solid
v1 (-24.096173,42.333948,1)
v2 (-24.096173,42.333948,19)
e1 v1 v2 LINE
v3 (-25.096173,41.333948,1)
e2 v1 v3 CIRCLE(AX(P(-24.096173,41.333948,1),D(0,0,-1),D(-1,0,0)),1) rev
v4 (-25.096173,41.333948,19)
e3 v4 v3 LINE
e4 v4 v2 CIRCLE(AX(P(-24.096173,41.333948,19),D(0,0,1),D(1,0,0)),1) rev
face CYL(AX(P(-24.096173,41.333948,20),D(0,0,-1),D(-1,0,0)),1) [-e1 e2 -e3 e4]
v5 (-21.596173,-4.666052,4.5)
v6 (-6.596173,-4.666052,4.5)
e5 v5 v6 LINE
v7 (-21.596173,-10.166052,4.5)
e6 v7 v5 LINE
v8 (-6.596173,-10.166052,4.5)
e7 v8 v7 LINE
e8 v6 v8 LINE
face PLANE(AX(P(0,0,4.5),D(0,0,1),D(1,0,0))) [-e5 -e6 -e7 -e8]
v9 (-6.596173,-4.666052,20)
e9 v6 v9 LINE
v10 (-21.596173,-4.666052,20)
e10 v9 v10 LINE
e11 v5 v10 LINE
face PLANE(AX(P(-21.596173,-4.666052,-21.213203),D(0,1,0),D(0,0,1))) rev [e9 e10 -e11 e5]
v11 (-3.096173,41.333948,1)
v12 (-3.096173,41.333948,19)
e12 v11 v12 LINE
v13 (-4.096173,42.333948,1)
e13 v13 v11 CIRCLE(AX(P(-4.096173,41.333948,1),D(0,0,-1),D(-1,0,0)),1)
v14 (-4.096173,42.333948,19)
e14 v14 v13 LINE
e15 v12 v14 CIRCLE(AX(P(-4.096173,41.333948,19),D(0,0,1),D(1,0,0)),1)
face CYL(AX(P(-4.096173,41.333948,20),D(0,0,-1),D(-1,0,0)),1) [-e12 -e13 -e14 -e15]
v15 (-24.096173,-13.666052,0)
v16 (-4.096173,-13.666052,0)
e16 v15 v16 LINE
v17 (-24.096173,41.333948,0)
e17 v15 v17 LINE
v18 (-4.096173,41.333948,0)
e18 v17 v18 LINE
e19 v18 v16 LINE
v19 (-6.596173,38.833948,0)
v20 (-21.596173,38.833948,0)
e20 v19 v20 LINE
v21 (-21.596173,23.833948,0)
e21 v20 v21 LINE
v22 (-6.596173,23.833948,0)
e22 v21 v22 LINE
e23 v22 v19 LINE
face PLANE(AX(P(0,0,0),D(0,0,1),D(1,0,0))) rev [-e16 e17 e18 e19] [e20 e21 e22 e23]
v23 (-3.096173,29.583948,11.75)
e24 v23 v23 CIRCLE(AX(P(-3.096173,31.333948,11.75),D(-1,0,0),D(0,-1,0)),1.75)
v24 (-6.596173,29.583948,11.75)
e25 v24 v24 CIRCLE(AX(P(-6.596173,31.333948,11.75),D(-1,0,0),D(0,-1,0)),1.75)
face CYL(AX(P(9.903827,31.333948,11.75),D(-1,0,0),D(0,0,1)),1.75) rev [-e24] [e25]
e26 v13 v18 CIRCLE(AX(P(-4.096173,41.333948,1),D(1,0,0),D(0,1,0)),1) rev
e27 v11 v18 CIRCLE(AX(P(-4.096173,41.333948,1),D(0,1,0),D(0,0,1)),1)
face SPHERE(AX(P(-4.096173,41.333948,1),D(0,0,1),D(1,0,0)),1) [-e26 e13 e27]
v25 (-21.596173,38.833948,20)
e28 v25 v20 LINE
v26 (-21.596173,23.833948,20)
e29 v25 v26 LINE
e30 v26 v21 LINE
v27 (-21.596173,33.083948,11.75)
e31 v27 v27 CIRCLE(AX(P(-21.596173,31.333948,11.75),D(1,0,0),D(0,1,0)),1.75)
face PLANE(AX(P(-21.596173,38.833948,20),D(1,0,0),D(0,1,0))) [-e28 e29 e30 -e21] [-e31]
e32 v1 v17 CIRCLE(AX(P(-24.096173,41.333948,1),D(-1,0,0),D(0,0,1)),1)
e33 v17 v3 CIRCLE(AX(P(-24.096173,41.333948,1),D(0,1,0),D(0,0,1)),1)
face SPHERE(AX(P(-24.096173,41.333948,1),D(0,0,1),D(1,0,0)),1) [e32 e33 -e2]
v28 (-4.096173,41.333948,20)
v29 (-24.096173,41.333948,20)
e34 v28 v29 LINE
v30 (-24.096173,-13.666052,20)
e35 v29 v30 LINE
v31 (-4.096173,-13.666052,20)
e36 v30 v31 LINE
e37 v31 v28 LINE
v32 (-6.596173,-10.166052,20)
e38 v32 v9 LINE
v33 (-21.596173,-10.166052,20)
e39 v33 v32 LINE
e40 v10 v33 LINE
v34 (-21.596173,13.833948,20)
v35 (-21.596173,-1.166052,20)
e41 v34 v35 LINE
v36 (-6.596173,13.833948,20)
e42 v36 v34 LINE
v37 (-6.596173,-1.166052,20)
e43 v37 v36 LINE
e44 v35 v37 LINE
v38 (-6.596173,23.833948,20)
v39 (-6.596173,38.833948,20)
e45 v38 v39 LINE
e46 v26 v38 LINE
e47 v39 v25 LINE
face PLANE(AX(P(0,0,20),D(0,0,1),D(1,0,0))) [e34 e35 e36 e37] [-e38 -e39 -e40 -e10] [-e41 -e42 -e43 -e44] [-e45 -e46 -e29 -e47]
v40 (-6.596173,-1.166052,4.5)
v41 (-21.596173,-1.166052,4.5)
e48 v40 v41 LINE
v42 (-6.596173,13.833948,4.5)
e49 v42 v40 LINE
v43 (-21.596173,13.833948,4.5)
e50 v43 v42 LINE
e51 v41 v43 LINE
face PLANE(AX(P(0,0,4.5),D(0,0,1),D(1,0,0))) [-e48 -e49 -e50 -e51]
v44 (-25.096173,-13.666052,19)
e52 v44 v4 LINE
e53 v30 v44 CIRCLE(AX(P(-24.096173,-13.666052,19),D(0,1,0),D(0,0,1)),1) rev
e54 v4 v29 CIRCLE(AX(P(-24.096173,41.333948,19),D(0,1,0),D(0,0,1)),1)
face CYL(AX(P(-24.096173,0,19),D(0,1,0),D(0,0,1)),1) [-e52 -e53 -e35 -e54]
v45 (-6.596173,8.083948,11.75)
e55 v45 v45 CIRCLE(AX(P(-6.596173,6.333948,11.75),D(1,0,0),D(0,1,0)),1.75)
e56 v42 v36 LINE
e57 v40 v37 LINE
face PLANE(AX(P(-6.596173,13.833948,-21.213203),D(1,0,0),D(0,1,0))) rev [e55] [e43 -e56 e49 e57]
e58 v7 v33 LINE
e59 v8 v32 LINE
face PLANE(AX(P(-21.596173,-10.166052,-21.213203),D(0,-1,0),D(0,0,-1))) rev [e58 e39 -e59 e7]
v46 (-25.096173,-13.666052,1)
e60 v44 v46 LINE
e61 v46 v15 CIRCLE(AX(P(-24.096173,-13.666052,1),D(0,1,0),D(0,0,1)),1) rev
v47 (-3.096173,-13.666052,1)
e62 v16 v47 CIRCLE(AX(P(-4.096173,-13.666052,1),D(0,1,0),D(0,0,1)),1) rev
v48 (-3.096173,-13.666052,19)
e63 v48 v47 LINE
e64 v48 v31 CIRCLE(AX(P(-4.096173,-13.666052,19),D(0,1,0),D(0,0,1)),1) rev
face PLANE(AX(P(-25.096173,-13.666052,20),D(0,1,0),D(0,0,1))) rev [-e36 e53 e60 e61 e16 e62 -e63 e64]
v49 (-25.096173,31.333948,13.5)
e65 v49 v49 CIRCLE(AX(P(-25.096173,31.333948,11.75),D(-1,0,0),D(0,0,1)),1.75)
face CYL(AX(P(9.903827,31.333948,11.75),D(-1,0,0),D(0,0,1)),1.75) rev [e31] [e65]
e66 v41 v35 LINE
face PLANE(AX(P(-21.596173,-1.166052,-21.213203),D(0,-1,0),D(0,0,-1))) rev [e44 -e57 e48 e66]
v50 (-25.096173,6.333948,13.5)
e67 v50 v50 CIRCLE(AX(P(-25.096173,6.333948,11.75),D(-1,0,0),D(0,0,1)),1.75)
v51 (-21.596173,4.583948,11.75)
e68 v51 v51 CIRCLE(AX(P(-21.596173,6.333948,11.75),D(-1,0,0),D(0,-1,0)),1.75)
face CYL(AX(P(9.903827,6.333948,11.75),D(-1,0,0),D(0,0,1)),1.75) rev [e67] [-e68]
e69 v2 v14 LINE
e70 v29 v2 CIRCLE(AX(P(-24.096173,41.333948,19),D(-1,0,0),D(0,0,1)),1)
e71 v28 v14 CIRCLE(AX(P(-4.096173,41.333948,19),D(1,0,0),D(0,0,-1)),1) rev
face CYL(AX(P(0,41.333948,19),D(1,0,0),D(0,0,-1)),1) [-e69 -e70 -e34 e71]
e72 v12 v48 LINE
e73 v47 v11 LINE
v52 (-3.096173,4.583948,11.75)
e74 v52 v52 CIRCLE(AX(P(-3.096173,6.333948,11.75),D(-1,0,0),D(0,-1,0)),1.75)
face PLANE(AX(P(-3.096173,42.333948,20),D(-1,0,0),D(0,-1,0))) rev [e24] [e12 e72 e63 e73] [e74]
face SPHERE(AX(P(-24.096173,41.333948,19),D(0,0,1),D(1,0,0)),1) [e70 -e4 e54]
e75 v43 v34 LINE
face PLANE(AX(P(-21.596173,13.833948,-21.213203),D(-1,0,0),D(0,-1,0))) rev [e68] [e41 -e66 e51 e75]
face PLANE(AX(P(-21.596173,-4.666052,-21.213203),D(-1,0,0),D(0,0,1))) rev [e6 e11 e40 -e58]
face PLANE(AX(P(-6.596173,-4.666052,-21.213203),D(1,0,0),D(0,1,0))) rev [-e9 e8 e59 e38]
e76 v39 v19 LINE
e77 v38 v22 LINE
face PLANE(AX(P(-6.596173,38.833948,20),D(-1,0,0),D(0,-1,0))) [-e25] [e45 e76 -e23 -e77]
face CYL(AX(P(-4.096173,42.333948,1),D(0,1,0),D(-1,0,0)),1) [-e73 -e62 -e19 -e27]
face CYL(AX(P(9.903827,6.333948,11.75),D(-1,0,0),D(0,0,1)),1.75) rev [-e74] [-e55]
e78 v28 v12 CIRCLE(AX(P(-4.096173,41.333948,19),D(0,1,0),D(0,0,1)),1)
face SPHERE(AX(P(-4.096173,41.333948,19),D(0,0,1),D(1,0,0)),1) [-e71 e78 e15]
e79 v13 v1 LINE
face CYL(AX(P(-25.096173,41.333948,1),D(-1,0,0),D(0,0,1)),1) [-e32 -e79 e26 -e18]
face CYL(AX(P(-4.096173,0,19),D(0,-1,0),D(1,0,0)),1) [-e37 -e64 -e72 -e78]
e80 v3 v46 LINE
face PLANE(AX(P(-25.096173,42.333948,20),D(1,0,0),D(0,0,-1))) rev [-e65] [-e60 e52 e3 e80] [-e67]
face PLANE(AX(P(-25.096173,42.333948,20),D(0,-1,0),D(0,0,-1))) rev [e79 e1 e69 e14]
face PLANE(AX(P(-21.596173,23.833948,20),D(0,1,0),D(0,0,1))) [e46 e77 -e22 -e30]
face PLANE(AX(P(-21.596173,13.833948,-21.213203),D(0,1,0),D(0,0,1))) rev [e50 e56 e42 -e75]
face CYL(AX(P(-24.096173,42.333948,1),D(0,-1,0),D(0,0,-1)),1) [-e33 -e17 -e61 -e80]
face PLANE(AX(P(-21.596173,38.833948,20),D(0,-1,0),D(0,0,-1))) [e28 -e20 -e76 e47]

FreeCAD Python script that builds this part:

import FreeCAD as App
import Part
import Sketcher

V = App.Vector
Q = App.Units.Quantity


def edges_at(feature, points):
    """Names of the edges that pass closest to the given points."""
    edges = feature.Shape.Edges
    near = lambda p: min(range(len(edges)), key=lambda i: edges[i].distToShape(Part.Vertex(*p))[0])
    return sorted({f"Edge{near(p) + 1}" for p in points})

doc = App.newDocument("Part")
body = doc.addObject("PartDesign::Body", "Body")

# Sketch on XY plane
sketch1 = body.newObject("Sketcher::SketchObject", "Sketch")
sketch1.AttachmentSupport = (doc.getObject("XY_Plane"), [""])
sketch1.MapMode = "FlatFace"
sketch1.addGeometry([
    Part.LineSegment(V(-25, 42, 0), V(-25, -14, 0)),  # 0
    Part.LineSegment(V(-25, -14, 0), V(-3, -14, 0)),  # 1
    Part.LineSegment(V(-3, -14, 0), V(-3, 42, 0)),  # 2
    Part.LineSegment(V(-3, 42, 0), V(-25, 42, 0)),  # 3
    Part.LineSegment(V(-7, 24, 0), V(-22, 24, 0)),  # 4
    Part.LineSegment(V(-22, 24, 0), V(-22, 39, 0)),  # 5
    Part.LineSegment(V(-22, 39, 0), V(-7, 39, 0)),  # 6
    Part.LineSegment(V(-7, 39, 0), V(-7, 24, 0)),  # 7
], False)
sketch1.addConstraint([
    Sketcher.Constraint("Coincident", 0, 2, 1, 1),
    Sketcher.Constraint("Coincident", 1, 2, 2, 1),
    Sketcher.Constraint("Coincident", 2, 2, 3, 1),
    Sketcher.Constraint("Coincident", 3, 2, 0, 1),
    Sketcher.Constraint("Coincident", 4, 2, 5, 1),
    Sketcher.Constraint("Coincident", 5, 2, 6, 1),
    Sketcher.Constraint("Coincident", 6, 2, 7, 1),
    Sketcher.Constraint("Coincident", 7, 2, 4, 1),
    Sketcher.Constraint("Vertical", 0),
    Sketcher.Constraint("Horizontal", 1),
    Sketcher.Constraint("Vertical", 2),
    Sketcher.Constraint("Horizontal", 3),
    Sketcher.Constraint("Horizontal", 4),
    Sketcher.Constraint("Vertical", 5),
    Sketcher.Constraint("Horizontal", 6),
    Sketcher.Constraint("Vertical", 7),
    Sketcher.Constraint("Equal", 6, 5),
    Sketcher.Constraint("DistanceX", 1, 1, 1, 2, Q("22 mm")),
    Sketcher.Constraint("DistanceX", 4, 2, 4, 1, Q("15 mm")),
    Sketcher.Constraint("DistanceY", 0, 2, 0, 1, Q("56 mm")),
    Sketcher.Constraint("DistanceX", 3, 2, 4, 2, Q("3.5 mm")),
    Sketcher.Constraint("DistanceY", 4, 2, 3, 2, Q("18.5 mm")),
    Sketcher.Constraint("DistanceX", 0, 2, -1, 1, Q("25.096173 mm")),
    Sketcher.Constraint("DistanceY", 0, 2, -1, 1, Q("13.666052 mm")),
])
pad1 = body.newObject("PartDesign::Pad", "Pad")
pad1.Profile = sketch1
pad1.Length = 20

# Sketch on XY plane
sketch2 = body.newObject("Sketcher::SketchObject", "Sketch001")
sketch2.AttachmentSupport = (doc.getObject("XY_Plane"), [""])
sketch2.MapMode = "FlatFace"
sketch2.AttachmentOffset = App.Placement(V(0, 0, 20), App.Rotation())
sketch2.addGeometry([
    Part.LineSegment(V(-22, 14, 0), V(-22, -1, 0)),  # 0
    Part.LineSegment(V(-22, -1, 0), V(-7, -1, 0)),  # 1
    Part.LineSegment(V(-7, -1, 0), V(-7, 14, 0)),  # 2
    Part.LineSegment(V(-7, 14, 0), V(-22, 14, 0)),  # 3
    Part.LineSegment(V(-22, -5, 0), V(-22, -10, 0)),  # 4
    Part.LineSegment(V(-22, -10, 0), V(-7, -10, 0)),  # 5
    Part.LineSegment(V(-7, -10, 0), V(-7, -5, 0)),  # 6
    Part.LineSegment(V(-7, -5, 0), V(-22, -5, 0)),  # 7
], False)
sketch2.addConstraint([
    Sketcher.Constraint("Coincident", 0, 2, 1, 1),
    Sketcher.Constraint("Coincident", 1, 2, 2, 1),
    Sketcher.Constraint("Coincident", 2, 2, 3, 1),
    Sketcher.Constraint("Coincident", 3, 2, 0, 1),
    Sketcher.Constraint("Coincident", 4, 2, 5, 1),
    Sketcher.Constraint("Coincident", 5, 2, 6, 1),
    Sketcher.Constraint("Coincident", 6, 2, 7, 1),
    Sketcher.Constraint("Coincident", 7, 2, 4, 1),
    Sketcher.Constraint("Vertical", 0),
    Sketcher.Constraint("Horizontal", 1),
    Sketcher.Constraint("Vertical", 2),
    Sketcher.Constraint("Horizontal", 3),
    Sketcher.Constraint("Vertical", 4),
    Sketcher.Constraint("Horizontal", 5),
    Sketcher.Constraint("Vertical", 6),
    Sketcher.Constraint("Horizontal", 7),
    Sketcher.Constraint("Vertical", 3, 2, 4, 2),
    Sketcher.Constraint("Vertical", 2, 2, 5, 2),
    Sketcher.Constraint("Equal", 7, 0),
    Sketcher.Constraint("DistanceX", 1, 1, 1, 2, Q("15 mm")),
    Sketcher.Constraint("DistanceY", 4, 2, 4, 1, Q("5.5 mm")),
    Sketcher.Constraint("DistanceY", 4, 2, 0, 2, Q("9 mm")),
    Sketcher.Constraint("DistanceX", 0, 2, -1, 1, Q("21.596173 mm")),
    Sketcher.Constraint("DistanceY", 0, 2, -1, 1, Q("1.166052 mm")),
])
pocket1 = body.newObject("PartDesign::Pocket", "Pocket")
pocket1.Profile = sketch2
pocket1.Length = 15.5
doc.recompute()

fillet = body.newObject("PartDesign::Fillet", "Fillet")
fillet.Base = (pocket1, edges_at(pocket1, [
    (-3.096, 14.334, 20),
    (-14.096, 42.334, 20),
    (-25.096, 14.334, 20),
    (-14.096, 42.334, 0),
    (-3.096, 14.334, 0),
    (-25.096, 14.334, 0),
    (-25.096, 42.334, 10),
    (-3.096, 42.334, 10),
]))
fillet.Radius = 1

# Sketch on YZ plane
sketch3 = body.newObject("Sketcher::SketchObject", "Sketch002")
sketch3.AttachmentSupport = (doc.getObject("YZ_Plane"), [""])
sketch3.MapMode = "FlatFace"
sketch3.AttachmentOffset = App.Placement(V(0, 0, -25.096173), App.Rotation())
sketch3.addGeometry([
    Part.Circle(V(31.3, 11.8, 0), V(0, 0, 1), 1.8),
    Part.Circle(V(6.3, 11.8, 0), V(0, 0, 1), 1.8),
], False)
sketch3.addConstraint([
    Sketcher.Constraint("Equal", 0, 1),
    Sketcher.Constraint("Horizontal", 0, 3, 1, 3),
    Sketcher.Constraint("Diameter", 0, Q("3.5 mm")),
    Sketcher.Constraint("DistanceX", 1, 3, 0, 3, Q("25 mm")),
    Sketcher.Constraint("DistanceY", -1, 1, 0, 3, Q("11.75 mm")),
    Sketcher.Constraint("DistanceX", -1, 1, 0, 3, Q("31.333948 mm")),
])
pocket2 = body.newObject("PartDesign::Pocket", "Pocket001")
pocket2.Profile = sketch3
pocket2.Length = 35
pocket2.Reversed = True

doc.recompute()
